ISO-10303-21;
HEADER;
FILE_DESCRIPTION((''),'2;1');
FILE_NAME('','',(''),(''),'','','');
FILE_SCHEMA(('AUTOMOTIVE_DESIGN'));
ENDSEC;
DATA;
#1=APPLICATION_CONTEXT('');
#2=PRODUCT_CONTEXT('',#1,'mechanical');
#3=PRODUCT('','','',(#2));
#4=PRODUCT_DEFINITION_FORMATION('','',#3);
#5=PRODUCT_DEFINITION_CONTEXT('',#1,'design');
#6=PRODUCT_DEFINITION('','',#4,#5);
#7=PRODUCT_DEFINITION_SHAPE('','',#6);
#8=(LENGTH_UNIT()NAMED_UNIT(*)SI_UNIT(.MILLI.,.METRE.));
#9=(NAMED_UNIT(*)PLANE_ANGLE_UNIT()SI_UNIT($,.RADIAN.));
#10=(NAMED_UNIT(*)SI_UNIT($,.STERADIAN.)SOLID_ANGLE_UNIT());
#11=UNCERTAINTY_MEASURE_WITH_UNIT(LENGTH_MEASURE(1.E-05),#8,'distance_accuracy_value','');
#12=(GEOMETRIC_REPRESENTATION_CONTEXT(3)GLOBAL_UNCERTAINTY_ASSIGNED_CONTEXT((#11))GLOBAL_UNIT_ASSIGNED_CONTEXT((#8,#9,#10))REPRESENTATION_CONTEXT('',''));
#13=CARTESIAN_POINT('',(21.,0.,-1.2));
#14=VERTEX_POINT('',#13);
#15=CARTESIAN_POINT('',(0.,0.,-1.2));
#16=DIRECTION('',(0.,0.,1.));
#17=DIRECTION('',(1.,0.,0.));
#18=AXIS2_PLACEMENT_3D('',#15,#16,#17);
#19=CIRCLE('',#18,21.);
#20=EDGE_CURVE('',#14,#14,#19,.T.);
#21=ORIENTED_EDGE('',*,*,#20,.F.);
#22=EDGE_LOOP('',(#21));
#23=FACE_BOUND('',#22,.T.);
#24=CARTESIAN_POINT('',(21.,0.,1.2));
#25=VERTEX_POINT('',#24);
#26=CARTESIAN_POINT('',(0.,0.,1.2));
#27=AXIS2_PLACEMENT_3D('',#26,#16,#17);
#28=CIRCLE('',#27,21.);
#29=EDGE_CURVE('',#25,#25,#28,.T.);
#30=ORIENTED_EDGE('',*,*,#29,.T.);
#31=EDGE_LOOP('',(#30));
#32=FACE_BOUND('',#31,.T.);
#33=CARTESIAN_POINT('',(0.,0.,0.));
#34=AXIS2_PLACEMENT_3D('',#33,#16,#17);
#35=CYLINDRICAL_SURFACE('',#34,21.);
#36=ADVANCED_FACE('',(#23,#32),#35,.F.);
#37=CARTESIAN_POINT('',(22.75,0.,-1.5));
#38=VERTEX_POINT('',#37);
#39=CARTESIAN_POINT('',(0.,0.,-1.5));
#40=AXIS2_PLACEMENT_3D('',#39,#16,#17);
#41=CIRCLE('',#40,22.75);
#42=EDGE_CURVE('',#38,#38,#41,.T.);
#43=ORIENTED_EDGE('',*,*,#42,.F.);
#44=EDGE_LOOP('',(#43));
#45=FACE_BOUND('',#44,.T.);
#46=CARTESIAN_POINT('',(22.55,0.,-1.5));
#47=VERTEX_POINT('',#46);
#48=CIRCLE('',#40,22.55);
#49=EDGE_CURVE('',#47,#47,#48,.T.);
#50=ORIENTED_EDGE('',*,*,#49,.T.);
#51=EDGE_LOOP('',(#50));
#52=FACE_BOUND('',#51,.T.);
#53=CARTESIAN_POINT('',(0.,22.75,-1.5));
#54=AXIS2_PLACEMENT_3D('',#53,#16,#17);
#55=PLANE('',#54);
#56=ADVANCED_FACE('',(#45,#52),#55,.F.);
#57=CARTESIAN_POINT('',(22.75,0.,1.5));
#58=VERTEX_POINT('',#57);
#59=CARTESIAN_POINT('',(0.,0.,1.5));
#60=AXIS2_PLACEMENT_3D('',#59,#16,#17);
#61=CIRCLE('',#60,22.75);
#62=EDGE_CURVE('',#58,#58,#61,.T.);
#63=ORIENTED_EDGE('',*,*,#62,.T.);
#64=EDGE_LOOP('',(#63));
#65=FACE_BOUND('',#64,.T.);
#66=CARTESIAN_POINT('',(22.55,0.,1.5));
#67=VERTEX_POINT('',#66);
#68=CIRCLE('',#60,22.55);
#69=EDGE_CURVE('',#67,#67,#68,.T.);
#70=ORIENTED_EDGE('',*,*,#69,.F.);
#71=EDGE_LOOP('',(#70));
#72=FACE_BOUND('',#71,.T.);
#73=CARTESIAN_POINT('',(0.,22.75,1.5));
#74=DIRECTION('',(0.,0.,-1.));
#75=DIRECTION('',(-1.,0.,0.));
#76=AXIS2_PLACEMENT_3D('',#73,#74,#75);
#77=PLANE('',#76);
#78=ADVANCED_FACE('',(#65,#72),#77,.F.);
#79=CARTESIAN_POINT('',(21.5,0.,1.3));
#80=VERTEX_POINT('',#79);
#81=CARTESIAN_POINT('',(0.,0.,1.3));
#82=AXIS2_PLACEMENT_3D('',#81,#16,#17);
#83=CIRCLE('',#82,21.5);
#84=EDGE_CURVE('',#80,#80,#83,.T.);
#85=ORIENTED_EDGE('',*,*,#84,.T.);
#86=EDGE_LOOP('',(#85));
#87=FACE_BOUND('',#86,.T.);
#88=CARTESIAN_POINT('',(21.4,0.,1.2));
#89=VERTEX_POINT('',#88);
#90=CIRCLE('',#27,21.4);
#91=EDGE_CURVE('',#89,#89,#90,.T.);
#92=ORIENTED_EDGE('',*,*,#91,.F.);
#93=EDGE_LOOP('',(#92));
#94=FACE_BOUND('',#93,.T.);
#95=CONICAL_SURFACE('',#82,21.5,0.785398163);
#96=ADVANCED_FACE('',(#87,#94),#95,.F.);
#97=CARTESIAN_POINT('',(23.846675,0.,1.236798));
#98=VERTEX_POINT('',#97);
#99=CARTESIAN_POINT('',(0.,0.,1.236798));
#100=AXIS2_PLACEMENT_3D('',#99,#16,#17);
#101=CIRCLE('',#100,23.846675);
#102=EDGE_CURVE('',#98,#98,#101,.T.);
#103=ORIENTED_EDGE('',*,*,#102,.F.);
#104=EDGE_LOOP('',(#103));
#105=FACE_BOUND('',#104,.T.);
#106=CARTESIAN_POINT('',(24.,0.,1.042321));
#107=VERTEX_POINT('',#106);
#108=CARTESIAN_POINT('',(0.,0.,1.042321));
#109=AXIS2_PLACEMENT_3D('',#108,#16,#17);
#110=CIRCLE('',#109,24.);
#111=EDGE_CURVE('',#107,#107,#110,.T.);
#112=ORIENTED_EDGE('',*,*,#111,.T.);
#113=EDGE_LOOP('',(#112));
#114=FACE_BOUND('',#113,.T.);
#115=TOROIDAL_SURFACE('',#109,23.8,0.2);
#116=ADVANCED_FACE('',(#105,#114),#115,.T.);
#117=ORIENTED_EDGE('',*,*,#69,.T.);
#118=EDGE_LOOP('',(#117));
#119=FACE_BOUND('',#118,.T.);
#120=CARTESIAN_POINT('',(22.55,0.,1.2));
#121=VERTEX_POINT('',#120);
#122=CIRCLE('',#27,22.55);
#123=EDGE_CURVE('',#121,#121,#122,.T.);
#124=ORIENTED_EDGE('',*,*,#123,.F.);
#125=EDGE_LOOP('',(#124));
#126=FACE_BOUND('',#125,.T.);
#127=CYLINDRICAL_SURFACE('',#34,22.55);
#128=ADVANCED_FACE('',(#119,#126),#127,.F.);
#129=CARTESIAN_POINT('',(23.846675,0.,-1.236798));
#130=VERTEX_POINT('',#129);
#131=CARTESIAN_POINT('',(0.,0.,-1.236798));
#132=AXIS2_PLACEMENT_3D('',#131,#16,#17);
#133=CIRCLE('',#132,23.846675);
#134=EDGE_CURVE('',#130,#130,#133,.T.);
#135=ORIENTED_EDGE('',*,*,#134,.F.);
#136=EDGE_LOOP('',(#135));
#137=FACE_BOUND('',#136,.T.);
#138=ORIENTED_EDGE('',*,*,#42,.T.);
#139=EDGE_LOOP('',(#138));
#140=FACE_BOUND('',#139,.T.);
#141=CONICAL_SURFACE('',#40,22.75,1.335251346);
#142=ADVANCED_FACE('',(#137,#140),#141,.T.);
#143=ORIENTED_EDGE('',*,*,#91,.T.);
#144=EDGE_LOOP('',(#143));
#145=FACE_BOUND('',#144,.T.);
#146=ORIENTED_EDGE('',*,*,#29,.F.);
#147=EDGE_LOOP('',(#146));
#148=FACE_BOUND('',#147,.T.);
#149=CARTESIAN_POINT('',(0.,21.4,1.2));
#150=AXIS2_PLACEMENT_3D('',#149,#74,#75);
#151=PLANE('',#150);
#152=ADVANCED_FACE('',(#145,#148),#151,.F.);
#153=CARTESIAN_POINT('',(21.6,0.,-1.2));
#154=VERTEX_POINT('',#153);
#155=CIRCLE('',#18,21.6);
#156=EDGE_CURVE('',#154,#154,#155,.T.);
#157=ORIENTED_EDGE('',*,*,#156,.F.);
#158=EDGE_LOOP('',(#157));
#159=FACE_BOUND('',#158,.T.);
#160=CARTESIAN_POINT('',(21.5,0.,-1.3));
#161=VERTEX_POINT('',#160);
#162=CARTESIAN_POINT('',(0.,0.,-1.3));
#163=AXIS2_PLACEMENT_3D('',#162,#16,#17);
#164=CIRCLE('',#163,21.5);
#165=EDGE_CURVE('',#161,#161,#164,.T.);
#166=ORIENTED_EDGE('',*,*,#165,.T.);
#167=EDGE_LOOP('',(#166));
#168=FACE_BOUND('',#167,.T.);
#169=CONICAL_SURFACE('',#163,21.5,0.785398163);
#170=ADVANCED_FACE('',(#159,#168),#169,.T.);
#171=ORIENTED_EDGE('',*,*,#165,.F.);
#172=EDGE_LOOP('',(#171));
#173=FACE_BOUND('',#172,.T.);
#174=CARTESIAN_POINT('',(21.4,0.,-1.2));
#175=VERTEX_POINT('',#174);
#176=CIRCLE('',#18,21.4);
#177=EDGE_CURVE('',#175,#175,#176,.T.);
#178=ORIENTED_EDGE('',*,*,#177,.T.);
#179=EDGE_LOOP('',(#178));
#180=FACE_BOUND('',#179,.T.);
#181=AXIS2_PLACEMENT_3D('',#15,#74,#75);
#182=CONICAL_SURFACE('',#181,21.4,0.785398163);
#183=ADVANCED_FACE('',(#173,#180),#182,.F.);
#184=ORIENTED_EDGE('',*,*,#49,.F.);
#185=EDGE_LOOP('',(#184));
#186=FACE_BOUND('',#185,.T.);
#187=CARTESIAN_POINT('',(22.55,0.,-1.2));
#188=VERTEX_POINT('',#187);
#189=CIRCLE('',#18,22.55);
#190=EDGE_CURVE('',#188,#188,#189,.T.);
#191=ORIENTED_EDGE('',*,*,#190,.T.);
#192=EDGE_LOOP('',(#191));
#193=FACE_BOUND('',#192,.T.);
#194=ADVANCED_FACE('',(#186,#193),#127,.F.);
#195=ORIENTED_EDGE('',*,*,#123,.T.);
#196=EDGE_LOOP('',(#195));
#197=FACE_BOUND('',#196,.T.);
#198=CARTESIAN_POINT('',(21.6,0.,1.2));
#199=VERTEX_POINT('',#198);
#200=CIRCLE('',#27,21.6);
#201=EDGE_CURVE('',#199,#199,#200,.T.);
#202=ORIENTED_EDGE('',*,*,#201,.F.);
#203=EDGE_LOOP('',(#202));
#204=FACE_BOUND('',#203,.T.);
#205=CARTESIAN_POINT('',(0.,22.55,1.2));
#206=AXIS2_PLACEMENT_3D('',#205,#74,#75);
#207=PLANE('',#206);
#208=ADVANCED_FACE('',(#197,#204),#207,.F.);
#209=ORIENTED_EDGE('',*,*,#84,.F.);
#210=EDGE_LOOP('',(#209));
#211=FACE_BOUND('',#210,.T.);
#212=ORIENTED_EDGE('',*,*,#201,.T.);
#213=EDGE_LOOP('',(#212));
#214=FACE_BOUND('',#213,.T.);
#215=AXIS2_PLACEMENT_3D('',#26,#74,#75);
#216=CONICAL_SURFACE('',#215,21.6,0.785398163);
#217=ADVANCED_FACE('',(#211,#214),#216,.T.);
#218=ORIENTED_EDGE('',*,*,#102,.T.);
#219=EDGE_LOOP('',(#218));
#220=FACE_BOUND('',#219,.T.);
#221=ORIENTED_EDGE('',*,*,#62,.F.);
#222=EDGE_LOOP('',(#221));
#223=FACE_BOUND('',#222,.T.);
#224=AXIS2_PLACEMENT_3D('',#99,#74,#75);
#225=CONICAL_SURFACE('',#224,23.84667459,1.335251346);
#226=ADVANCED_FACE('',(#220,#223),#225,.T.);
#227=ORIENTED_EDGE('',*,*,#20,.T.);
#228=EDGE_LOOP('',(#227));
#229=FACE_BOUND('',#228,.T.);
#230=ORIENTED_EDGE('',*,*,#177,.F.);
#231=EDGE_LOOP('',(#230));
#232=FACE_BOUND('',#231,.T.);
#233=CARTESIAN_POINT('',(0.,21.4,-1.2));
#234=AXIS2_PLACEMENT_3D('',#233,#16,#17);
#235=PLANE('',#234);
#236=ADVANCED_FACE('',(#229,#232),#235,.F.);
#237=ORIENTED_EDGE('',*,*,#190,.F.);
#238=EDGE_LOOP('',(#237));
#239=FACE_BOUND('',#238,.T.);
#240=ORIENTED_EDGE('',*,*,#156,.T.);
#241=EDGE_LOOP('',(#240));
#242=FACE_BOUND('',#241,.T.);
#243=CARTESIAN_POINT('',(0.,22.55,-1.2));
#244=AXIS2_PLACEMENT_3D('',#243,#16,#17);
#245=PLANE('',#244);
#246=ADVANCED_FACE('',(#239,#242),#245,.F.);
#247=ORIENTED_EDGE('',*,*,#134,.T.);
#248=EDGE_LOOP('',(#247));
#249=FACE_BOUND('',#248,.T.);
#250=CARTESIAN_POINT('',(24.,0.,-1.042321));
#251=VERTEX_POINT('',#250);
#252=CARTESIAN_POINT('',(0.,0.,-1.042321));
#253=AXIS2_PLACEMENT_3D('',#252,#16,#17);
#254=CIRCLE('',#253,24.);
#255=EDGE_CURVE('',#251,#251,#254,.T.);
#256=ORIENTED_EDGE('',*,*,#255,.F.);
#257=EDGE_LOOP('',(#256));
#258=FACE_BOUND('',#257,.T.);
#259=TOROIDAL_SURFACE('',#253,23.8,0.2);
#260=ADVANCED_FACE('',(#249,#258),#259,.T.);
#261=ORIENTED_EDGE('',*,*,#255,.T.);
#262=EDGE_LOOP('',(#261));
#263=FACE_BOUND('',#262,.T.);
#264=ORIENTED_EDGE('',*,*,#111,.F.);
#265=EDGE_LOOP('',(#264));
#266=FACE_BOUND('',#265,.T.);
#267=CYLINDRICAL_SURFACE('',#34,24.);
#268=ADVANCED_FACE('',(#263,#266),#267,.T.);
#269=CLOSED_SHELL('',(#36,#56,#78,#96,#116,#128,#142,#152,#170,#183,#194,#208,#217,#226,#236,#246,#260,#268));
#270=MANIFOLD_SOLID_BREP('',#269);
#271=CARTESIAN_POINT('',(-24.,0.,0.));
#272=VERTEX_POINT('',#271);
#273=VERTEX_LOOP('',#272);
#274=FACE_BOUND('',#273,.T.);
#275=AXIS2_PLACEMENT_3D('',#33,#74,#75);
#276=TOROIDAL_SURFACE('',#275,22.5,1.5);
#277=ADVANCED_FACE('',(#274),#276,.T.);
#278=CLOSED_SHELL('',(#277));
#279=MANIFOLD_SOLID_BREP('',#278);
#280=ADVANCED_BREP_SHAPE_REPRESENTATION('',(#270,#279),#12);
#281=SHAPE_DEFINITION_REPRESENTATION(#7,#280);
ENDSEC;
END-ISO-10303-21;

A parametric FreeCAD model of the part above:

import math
import FreeCAD as App
import Part
import Sketcher
from FreeCAD import Vector

doc = App.newDocument("Part")
body = doc.addObject("PartDesign::Body", "Body")

# Sketch on YZ plane
sketch1 = body.newObject("Sketcher::SketchObject", "Sketch")
sketch1.AttachmentSupport = (doc.getObject("YZ_Plane"), [""])
sketch1.MapMode = "FlatFace"
sketch1.addGeometry(Part.Circle(Vector(22.5, 0, 0), Vector(0, 0, 1), 1.5), False)
sketch1.addConstraint([
    Sketcher.Constraint("PointOnObject", 0, 3, -1),
    Sketcher.Constraint("Diameter", 0, 3.0),
    Sketcher.Constraint("DistanceX", -1, 1, 0, 3, 22.5),
])
revolution = body.newObject("PartDesign::Revolution", "Revolution")
revolution.Profile = sketch1
revolution.ReferenceAxis = (sketch1, ["V_Axis"])
revolution.Angle = 360
body2 = doc.addObject("PartDesign::Body", "Body001")

# Sketch on YZ plane
sketch2 = body2.newObject("Sketcher::SketchObject", "Sketch001")
sketch2.AttachmentSupport = (doc.getObject("YZ_Plane001"), [""])
sketch2.MapMode = "FlatFace"
sketch2.addGeometry([
    Part.LineSegment(Vector(24, -1.04, 0), Vector(24, 1.04, 0)),  # 0
    Part.ArcOfCircle(Part.Circle(Vector(23.8, 1.04, 0), Vector(0, 0, 1), 0.2), math.radians(0), math.radians(77)),  # 1
    Part.LineSegment(Vector(23.85, 1.24, 0), Vector(22.75, 1.5, 0)),  # 2
    Part.LineSegment(Vector(22.75, 1.5, 0), Vector(22.55, 1.5, 0)),  # 3
    Part.LineSegment(Vector(22.55, 1.5, 0), Vector(22.55, 1.2, 0)),  # 4
    Part.LineSegment(Vector(22.55, 1.2, 0), Vector(21.6, 1.2, 0)),  # 5
    Part.LineSegment(Vector(21.6, 1.2, 0), Vector(21.5, 1.3, 0)),  # 6
    Part.LineSegment(Vector(21.5, 1.3, 0), Vector(21.4, 1.2, 0)),  # 7
    Part.LineSegment(Vector(21.4, 1.2, 0), Vector(21, 1.2, 0)),  # 8
    Part.LineSegment(Vector(21, 1.2, 0), Vector(21, -1.2, 0)),  # 9
    Part.LineSegment(Vector(21, -1.2, 0), Vector(21.4, -1.2, 0)),  # 10
    Part.LineSegment(Vector(21.4, -1.2, 0), Vector(21.5, -1.3, 0)),  # 11
    Part.LineSegment(Vector(21.5, -1.3, 0), Vector(21.6, -1.2, 0)),  # 12
    Part.LineSegment(Vector(21.6, -1.2, 0), Vector(22.55, -1.2, 0)),  # 13
    Part.LineSegment(Vector(22.55, -1.2, 0), Vector(22.55, -1.5, 0)),  # 14
    Part.LineSegment(Vector(22.55, -1.5, 0), Vector(22.75, -1.5, 0)),  # 15
    Part.LineSegment(Vector(22.75, -1.5, 0), Vector(23.85, -1.24, 0)),  # 16
    Part.ArcOfCircle(Part.Circle(Vector(23.8, -1.04, 0), Vector(0, 0, 1), 0.2), math.radians(-77), math.radians(0)),  # 17
], False)
sketch2.addConstraint([
    Sketcher.Constraint("Tangent", 0, 2, 1, 1),
    Sketcher.Constraint("Tangent", 1, 2, 2, 1),
    Sketcher.Constraint("Coincident", 2, 2, 3, 1),
    Sketcher.Constraint("Coincident", 3, 2, 4, 1),
    Sketcher.Constraint("Coincident", 4, 2, 5, 1),
    Sketcher.Constraint("Coincident", 5, 2, 6, 1),
    Sketcher.Constraint("Coincident", 6, 2, 7, 1),
    Sketcher.Constraint("Coincident", 7, 2, 8, 1),
    Sketcher.Constraint("Coincident", 8, 2, 9, 1),
    Sketcher.Constraint("Coincident", 9, 2, 10, 1),
    Sketcher.Constraint("Coincident", 10, 2, 11, 1),
    Sketcher.Constraint("Coincident", 11, 2, 12, 1),
    Sketcher.Constraint("Coincident", 12, 2, 13, 1),
    Sketcher.Constraint("Coincident", 13, 2, 14, 1),
    Sketcher.Constraint("Coincident", 14, 2, 15, 1),
    Sketcher.Constraint("Coincident", 15, 2, 16, 1),
    Sketcher.Constraint("Tangent", 16, 2, 17, 1),
    Sketcher.Constraint("Tangent", 17, 2, 0, 1),
    Sketcher.Constraint("Vertical", 0),
    Sketcher.Constraint("Horizontal", 3),
    Sketcher.Constraint("Vertical", 4),
    Sketcher.Constraint("Horizontal", 5),
    Sketcher.Constraint("Horizontal", 8),
    Sketcher.Constraint("Vertical", 9),
    Sketcher.Constraint("Horizontal", 10),
    Sketcher.Constraint("Horizontal", 13),
    Sketcher.Constraint("Vertical", 14),
    Sketcher.Constraint("Horizontal", 15),
    Sketcher.Constraint("Equal", 1, 17),
    Sketcher.Constraint("Symmetric", 7, 2, 10, 2, -1),
    Sketcher.Constraint("Symmetric", 6, 2, 11, 2, -1),
    Sketcher.Constraint("Symmetric", 5, 2, 12, 2, -1),
    Sketcher.Constraint("Symmetric", 3, 2, 14, 2, -1),
    Sketcher.Constraint("Symmetric", 1, 2, 16, 2, -1),
    Sketcher.Constraint("Perpendicular", 6, 7),
    Sketcher.Constraint("Perpendicular", 7, 11),
    Sketcher.Constraint("Horizontal", 5, 2, 7, 2),
    Sketcher.Constraint("Radius", 1, 0.2),
    Sketcher.Constraint("DistanceX", 3, 2, 3, 1, 0.2),
    Sketcher.Constraint("DistanceX", 8, 2, 8, 1, 0.4),
    Sketcher.Constraint("DistanceY", 4, 2, 4, 1, 0.3),
    Sketcher.Constraint("DistanceY", 9, 2, 9, 1, 2.4),
    Sketcher.Constraint("DistanceX", -1, 1, 0, 2, 24.0),
    Sketcher.Constraint("DistanceX", -1, 1, 8, 2, 21.0),
    Sketcher.Constraint("DistanceX", 5, 2, 5, 1, 0.95),
    Sketcher.Constraint("DistanceX", -1, 1, 5, 2, 21.6),
    Sketcher.Constraint("DistanceY", 0, 1, 0, 2, 2.084641),
])
revolution2 = body2.newObject("PartDesign::Revolution", "Revolution001")
revolution2.Profile = sketch2
revolution2.ReferenceAxis = (sketch2, ["V_Axis"])
revolution2.Angle = 360

doc.recompute()
